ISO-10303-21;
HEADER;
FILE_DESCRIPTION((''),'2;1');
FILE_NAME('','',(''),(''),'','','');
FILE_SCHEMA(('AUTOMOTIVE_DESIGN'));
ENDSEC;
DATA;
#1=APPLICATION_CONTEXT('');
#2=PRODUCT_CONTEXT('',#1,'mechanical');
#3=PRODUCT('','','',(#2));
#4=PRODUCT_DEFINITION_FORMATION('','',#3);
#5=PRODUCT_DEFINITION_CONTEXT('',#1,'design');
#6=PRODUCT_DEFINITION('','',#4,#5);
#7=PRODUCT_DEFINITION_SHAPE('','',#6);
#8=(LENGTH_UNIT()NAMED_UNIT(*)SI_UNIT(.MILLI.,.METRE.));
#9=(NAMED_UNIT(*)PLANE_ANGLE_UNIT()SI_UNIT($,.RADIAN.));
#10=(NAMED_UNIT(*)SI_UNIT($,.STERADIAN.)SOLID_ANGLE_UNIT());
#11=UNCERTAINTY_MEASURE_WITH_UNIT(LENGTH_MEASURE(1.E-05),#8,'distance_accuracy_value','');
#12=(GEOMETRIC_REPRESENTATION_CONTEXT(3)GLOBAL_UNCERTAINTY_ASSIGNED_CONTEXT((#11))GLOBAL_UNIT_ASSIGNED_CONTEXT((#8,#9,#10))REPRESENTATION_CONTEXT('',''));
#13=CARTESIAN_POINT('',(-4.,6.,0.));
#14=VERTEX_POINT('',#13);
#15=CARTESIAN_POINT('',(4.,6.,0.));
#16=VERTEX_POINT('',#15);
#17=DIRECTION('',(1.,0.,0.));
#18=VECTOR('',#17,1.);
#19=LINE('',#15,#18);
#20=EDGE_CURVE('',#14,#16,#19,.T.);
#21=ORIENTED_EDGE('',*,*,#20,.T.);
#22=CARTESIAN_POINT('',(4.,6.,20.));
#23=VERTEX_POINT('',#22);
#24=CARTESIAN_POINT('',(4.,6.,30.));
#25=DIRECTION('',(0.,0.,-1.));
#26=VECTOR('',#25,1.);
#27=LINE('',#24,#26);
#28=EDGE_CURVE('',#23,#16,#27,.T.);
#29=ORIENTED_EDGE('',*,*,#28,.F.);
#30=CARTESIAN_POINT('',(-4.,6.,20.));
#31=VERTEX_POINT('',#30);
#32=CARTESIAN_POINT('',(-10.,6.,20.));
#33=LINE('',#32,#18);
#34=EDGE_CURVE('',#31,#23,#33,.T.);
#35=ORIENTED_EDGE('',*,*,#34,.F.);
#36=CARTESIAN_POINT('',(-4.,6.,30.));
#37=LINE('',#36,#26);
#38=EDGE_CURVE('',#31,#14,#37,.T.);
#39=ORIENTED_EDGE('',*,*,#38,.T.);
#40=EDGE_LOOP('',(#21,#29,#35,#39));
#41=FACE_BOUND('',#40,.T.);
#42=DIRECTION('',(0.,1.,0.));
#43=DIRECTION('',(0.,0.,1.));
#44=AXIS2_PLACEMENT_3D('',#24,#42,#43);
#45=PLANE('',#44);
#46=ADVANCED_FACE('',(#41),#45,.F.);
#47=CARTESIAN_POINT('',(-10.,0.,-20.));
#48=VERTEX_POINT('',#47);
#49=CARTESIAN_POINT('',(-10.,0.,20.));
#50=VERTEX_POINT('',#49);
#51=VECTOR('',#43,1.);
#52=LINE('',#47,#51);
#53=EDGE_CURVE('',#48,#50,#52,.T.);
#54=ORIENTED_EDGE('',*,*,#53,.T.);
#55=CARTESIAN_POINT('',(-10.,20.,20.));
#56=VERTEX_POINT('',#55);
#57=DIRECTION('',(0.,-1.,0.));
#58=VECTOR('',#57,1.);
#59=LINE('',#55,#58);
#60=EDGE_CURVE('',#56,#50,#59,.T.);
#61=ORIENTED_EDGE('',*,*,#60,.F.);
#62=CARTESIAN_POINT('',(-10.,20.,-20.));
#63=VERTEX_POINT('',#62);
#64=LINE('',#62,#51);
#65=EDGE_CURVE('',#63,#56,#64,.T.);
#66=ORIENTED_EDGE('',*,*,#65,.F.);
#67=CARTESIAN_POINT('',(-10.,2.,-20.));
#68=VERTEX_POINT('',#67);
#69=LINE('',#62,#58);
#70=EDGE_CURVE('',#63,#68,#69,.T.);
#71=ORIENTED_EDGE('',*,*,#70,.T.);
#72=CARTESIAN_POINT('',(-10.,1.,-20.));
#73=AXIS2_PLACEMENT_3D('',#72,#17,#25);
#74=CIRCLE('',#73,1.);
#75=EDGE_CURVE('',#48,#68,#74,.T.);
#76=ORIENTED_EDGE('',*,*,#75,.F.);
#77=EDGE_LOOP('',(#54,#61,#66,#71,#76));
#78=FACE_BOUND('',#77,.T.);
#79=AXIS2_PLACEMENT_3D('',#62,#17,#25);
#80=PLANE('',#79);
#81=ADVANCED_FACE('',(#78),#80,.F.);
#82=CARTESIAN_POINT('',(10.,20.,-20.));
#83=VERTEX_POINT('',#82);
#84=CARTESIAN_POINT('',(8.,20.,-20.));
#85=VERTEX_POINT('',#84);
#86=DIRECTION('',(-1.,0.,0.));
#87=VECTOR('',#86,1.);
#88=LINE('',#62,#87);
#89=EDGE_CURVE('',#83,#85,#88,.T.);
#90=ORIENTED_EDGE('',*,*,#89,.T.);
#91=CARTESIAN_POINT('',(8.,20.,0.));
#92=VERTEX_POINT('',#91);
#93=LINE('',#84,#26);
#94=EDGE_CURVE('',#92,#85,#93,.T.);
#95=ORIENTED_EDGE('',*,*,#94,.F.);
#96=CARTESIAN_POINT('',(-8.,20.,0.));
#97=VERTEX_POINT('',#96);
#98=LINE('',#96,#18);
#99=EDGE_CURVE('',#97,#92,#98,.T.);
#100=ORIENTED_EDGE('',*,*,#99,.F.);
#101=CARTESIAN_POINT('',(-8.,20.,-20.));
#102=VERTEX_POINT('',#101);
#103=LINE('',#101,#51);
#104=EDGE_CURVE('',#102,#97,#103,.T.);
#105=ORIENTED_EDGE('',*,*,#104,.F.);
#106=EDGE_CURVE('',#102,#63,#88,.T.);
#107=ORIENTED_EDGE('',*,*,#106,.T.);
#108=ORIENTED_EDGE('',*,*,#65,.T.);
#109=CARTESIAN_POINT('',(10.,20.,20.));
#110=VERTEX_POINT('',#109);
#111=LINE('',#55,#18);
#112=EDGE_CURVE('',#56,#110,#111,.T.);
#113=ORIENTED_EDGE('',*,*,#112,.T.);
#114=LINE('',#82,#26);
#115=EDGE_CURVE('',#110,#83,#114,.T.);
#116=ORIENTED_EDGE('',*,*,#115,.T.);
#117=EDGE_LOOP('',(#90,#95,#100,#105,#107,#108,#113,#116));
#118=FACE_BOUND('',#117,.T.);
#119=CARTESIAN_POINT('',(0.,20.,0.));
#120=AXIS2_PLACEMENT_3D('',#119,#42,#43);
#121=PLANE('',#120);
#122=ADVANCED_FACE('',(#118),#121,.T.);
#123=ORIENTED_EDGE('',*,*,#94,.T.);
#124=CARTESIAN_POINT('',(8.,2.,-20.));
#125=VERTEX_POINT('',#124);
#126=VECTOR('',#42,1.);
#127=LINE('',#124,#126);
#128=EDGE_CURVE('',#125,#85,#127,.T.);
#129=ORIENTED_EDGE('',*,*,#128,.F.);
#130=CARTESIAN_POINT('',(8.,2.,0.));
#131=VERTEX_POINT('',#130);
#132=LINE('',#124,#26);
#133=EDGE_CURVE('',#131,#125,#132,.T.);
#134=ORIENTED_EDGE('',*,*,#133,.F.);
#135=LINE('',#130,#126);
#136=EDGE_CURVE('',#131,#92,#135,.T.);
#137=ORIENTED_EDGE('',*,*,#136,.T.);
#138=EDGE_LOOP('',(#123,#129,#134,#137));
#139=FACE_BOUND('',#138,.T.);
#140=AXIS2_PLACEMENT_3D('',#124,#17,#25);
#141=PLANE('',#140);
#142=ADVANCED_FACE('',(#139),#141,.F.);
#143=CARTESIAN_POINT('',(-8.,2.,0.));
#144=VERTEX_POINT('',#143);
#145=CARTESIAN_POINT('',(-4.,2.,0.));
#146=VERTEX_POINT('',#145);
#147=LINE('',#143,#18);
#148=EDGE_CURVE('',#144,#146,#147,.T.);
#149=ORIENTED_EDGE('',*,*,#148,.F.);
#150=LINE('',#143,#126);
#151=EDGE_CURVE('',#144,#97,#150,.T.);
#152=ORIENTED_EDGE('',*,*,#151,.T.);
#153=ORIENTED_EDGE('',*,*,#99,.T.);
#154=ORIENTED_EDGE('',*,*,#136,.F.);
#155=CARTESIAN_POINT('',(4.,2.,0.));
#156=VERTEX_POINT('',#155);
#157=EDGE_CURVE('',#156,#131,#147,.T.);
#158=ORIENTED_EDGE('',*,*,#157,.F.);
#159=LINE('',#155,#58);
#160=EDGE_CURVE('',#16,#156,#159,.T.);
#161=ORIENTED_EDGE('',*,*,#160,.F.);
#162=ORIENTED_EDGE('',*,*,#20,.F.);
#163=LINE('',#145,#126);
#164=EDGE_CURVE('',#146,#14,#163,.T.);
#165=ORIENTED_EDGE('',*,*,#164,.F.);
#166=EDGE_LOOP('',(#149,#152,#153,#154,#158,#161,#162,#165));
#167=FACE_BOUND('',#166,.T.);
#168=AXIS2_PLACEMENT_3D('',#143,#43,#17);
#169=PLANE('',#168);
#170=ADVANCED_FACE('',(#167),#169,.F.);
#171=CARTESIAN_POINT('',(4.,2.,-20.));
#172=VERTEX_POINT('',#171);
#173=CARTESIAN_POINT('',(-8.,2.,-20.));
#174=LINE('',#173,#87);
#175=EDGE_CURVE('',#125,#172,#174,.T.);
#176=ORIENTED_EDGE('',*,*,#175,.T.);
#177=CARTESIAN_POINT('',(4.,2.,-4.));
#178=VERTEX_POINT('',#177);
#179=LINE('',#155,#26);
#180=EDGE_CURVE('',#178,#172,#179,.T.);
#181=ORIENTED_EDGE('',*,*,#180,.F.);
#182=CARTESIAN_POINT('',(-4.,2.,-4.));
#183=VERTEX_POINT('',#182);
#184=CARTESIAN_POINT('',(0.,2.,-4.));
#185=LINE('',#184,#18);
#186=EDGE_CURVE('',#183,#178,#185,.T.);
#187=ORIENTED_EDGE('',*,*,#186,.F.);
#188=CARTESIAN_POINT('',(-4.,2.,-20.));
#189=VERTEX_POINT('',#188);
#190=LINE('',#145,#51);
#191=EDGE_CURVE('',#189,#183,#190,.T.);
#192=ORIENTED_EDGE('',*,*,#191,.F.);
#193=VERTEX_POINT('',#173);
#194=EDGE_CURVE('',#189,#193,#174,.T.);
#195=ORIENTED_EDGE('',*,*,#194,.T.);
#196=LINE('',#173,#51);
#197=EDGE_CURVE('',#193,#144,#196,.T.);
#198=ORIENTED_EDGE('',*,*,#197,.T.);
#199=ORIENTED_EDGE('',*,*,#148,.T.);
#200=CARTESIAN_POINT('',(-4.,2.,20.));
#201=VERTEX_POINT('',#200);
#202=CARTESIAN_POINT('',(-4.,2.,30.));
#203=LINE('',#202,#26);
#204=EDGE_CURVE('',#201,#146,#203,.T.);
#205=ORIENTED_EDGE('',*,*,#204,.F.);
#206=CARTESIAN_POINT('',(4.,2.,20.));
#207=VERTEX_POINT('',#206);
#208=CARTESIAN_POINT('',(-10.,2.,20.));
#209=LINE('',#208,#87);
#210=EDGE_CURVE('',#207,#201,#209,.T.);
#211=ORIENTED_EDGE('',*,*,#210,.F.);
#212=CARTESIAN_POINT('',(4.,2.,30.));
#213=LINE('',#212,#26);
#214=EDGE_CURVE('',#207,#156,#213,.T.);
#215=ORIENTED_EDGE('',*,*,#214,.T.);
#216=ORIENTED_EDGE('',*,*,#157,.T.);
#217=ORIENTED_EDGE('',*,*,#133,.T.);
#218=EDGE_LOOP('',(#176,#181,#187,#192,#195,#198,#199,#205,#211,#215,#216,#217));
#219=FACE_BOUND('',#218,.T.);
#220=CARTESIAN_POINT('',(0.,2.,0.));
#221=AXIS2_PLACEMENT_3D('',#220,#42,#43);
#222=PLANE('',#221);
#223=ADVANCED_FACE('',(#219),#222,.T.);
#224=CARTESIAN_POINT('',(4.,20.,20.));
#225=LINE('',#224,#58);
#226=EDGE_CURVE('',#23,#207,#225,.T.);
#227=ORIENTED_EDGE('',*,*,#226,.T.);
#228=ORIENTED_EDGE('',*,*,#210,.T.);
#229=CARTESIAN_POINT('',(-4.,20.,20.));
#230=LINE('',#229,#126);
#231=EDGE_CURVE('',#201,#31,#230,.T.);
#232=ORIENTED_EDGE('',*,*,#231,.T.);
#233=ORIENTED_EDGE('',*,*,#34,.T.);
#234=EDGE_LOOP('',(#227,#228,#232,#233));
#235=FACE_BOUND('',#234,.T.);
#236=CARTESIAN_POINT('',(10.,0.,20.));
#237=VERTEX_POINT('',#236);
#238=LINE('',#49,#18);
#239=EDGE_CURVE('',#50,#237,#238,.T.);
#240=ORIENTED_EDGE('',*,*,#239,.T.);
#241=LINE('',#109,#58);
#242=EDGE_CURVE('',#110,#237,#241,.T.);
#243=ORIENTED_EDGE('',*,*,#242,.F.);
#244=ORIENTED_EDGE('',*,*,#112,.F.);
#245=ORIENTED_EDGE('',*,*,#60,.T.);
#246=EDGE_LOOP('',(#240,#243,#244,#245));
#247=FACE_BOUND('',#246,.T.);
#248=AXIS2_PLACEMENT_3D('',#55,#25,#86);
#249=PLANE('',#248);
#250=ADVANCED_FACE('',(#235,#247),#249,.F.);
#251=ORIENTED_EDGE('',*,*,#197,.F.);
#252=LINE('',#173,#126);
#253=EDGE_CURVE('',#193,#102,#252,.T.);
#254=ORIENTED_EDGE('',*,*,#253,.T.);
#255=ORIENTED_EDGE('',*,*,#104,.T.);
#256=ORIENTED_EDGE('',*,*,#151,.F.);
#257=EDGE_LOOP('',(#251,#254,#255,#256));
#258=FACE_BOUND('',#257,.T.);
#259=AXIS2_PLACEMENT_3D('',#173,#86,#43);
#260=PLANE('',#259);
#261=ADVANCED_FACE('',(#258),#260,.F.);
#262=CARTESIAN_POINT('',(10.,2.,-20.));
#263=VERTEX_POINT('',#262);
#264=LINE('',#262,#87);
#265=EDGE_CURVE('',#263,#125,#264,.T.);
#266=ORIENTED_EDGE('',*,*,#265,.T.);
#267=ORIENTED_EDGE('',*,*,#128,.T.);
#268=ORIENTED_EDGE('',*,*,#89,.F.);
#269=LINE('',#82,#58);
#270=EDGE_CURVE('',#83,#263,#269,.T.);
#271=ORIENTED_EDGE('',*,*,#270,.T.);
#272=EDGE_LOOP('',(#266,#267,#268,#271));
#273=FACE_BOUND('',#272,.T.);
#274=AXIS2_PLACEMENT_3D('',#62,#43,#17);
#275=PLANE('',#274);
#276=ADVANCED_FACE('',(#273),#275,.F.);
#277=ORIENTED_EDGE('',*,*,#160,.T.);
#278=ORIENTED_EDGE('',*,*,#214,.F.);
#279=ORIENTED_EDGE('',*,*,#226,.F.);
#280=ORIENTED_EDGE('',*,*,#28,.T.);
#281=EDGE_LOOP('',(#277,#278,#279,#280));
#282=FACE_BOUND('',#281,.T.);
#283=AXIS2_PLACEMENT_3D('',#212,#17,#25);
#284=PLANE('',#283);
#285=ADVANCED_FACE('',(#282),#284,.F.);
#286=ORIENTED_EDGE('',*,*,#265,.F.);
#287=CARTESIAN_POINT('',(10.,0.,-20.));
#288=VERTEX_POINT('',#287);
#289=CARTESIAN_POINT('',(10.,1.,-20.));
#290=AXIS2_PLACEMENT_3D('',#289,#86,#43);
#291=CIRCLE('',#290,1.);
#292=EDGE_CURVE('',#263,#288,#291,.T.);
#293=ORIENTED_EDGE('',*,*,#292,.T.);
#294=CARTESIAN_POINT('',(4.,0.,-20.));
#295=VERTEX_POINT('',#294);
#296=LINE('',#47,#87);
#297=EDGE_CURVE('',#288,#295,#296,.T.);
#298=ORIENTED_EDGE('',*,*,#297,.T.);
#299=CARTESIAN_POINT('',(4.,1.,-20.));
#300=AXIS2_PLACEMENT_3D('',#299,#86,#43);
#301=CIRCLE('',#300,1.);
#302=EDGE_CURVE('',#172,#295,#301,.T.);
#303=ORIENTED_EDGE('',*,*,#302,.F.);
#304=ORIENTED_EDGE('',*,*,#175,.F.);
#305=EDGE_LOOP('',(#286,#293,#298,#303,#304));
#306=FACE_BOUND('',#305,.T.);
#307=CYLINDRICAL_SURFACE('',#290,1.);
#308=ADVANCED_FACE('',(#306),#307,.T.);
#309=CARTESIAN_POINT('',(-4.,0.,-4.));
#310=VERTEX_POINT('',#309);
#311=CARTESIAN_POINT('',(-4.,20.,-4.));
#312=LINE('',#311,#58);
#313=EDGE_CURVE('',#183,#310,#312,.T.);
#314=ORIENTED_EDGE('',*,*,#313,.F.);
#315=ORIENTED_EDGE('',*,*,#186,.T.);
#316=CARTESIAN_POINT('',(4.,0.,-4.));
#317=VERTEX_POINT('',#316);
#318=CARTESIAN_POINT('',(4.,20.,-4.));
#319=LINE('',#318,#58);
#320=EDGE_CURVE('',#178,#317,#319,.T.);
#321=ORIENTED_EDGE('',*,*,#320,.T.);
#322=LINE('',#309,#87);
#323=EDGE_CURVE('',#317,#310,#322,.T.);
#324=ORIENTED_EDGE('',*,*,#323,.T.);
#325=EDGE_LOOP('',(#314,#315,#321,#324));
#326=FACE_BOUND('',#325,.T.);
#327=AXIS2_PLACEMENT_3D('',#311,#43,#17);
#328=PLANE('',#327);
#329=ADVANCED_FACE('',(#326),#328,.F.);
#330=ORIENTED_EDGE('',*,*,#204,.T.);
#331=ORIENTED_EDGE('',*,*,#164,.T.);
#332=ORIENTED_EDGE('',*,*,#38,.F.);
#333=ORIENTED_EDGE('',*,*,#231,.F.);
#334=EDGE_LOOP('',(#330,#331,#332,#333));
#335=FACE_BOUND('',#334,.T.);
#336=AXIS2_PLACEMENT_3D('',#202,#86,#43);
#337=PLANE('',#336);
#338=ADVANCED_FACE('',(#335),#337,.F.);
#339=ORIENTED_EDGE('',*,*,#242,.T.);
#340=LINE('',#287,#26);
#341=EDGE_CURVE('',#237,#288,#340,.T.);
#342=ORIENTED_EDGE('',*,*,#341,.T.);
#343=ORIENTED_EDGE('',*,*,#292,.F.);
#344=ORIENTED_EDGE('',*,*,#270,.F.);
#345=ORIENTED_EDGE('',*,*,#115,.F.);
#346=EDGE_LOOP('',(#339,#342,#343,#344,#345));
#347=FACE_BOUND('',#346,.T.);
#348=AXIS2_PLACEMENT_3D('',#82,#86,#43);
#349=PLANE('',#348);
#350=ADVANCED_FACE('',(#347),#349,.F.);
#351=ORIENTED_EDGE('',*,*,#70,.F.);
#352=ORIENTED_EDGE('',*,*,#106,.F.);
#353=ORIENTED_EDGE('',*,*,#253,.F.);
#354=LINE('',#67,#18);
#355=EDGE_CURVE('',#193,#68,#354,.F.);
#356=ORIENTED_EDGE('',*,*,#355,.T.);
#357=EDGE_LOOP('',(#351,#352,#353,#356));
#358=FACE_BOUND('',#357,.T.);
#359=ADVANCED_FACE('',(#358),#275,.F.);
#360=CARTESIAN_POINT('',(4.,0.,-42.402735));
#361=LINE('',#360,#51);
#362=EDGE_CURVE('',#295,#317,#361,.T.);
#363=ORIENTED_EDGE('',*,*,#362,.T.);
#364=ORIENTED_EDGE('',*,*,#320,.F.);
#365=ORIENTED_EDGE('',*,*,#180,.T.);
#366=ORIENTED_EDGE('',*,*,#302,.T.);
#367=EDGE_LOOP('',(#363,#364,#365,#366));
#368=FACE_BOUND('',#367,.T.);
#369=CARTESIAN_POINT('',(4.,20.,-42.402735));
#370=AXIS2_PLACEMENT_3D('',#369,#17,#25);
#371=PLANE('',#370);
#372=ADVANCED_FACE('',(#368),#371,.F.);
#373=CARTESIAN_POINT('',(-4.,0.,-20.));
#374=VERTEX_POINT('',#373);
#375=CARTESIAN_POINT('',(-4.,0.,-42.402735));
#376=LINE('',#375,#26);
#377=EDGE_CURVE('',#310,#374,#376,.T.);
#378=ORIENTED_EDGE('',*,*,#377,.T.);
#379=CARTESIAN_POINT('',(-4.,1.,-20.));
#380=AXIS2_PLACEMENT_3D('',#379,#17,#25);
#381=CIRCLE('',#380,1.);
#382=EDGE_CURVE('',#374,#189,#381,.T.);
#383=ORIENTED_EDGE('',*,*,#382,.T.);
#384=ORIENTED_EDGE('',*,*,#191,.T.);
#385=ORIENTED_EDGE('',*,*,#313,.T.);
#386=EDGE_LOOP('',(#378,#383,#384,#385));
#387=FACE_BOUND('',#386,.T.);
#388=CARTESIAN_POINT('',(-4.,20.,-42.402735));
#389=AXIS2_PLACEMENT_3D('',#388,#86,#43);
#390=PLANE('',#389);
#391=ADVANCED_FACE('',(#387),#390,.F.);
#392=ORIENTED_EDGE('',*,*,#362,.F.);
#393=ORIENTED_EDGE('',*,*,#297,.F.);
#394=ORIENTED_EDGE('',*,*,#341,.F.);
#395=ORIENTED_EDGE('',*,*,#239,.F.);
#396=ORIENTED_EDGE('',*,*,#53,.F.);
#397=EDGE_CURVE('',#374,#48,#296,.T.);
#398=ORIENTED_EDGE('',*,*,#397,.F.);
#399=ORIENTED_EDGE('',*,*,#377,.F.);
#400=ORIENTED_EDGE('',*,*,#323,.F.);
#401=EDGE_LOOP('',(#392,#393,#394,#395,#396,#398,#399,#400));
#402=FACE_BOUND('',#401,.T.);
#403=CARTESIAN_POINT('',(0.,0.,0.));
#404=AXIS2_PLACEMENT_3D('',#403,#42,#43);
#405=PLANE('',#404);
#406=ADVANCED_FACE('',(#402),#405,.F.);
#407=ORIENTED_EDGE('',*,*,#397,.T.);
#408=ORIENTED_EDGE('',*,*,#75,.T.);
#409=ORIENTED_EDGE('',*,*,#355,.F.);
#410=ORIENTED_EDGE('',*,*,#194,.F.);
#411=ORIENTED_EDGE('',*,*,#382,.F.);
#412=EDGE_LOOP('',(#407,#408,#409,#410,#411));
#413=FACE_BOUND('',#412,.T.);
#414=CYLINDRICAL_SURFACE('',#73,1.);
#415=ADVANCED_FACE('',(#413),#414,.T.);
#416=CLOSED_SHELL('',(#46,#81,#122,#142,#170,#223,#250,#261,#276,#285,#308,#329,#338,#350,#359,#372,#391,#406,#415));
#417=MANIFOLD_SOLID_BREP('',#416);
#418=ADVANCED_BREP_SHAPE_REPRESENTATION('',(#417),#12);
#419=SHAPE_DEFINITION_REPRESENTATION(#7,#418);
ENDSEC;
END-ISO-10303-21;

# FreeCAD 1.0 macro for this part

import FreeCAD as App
import Part
import Sketcher


def add_polygon(sketch, points):
    """Adds a closed chain of lines whose ends are joined by coincident constraints."""
    first, n = sketch.GeometryCount, len(points)
    for a, b in zip(points, points[1:] + points[:1]):
        sketch.addGeometry(Part.LineSegment(App.Vector(*a, 0), App.Vector(*b, 0)), False)
    for i in range(n):
        sketch.addConstraint(Sketcher.Constraint("Coincident", first + i, 2, first + (i + 1) % n, 1))

doc = App.newDocument("Part")
params = doc.addObject("Spreadsheet::Sheet", "Params")
for row, (alias, value) in enumerate([
    ("sketch1_width", "20 mm"),
    ("sketch1_height", "40 mm"),
    ("pad1_length", "20 mm"),
    ("sketch2_width", "16 mm"),
    ("sketch2_height", "20 mm"),
    ("pocket1_length", "18 mm"),
    ("sketch3_width", "8 mm"),
    ("pocket2_length", "20 mm"),
    ("sketch4_diameter", "2 mm"),
    ("pad2_length", "6 mm"),
    ("sketch5_diameter", "2 mm"),
    ("pad3_length", "6 mm"),
    ("sketch6_width", "8 mm"),
    ("sketch6_height", "4 mm"),
    ("pocket3_length", "30 mm"),
], start=1):
    params.set(f"A{row}", alias)
    params.set(f"B{row}", "=" + value)
    params.setAlias(f"B{row}", alias)

body = doc.addObject("PartDesign::Body", "Body")

# Sketch on XZ plane
sketch1 = body.newObject("Sketcher::SketchObject", "Sketch")
sketch1.AttachmentSupport = (doc.getObject("XZ_Plane"), [""])
sketch1.MapMode = "FlatFace"
add_polygon(sketch1, [(-10, -20), (-10, 20), (10, 20), (10, -20)])  # lines 0-3
sketch1.addConstraint([
    Sketcher.Constraint("Vertical", 0),
    Sketcher.Constraint("Horizontal", 1),
    Sketcher.Constraint("Vertical", 2),
    Sketcher.Constraint("Horizontal", 3),
    Sketcher.Constraint("Symmetric", 0, 2, 2, 2, -1, 1),
    Sketcher.Constraint("DistanceX", 1, 1, 1, 2, 20.0),
    Sketcher.Constraint("DistanceY", 0, 1, 0, 2, 40.0),
])
sketch1.setExpression("Constraints[9]", "Params.sketch1_width")
sketch1.setExpression("Constraints[10]", "Params.sketch1_height")
pad1 = body.newObject("PartDesign::Pad", "Pad")
pad1.Profile = sketch1
pad1.setExpression("Length", "Params.pad1_length")
pad1.Reversed = True

# Sketch on XZ plane
sketch2 = body.newObject("Sketcher::SketchObject", "Sketch001")
sketch2.AttachmentSupport = (doc.getObject("XZ_Plane"), [""])
sketch2.MapMode = "FlatFace"
sketch2.AttachmentOffset = App.Placement(App.Vector(0, 0, -20), App.Rotation())
add_polygon(sketch2, [(-8, -20), (-8, 0), (8, 0), (8, -20)])  # lines 0-3
sketch2.addConstraint([
    Sketcher.Constraint("Vertical", 0),
    Sketcher.Constraint("Horizontal", 1),
    Sketcher.Constraint("Vertical", 2),
    Sketcher.Constraint("Horizontal", 3),
    Sketcher.Constraint("Symmetric", 0, 2, 1, 2, -1, 1),
    Sketcher.Constraint("DistanceX", 1, 1, 1, 2, 16.0),
    Sketcher.Constraint("DistanceY", 0, 1, 0, 2, 20.0),
])
sketch2.setExpression("Constraints[9]", "Params.sketch2_width")
sketch2.setExpression("Constraints[10]", "Params.sketch2_height")
pocket1 = body.newObject("PartDesign::Pocket", "Pocket")
pocket1.Profile = sketch2
pocket1.setExpression("Length", "Params.pocket1_length")
pocket1.Reversed = True

# Sketch on XZ plane
sketch3 = body.newObject("Sketcher::SketchObject", "Sketch002")
sketch3.AttachmentSupport = (doc.getObject("XZ_Plane"), [""])
sketch3.MapMode = "FlatFace"
add_polygon(sketch3, [(-4, -4), (-4, -42), (4, -42), (4, -4)])  # lines 0-3
sketch3.addConstraint([
    Sketcher.Constraint("Vertical", 0),
    Sketcher.Constraint("Horizontal", 1),
    Sketcher.Constraint("Vertical", 2),
    Sketcher.Constraint("Horizontal", 3),
    Sketcher.Constraint("DistanceX", 1, 1, 1, 2, 8.0),
    Sketcher.Constraint("DistanceX", 0, 2, -1, 1, 4.0),
    Sketcher.Constraint("DistanceY", 2, 2, -1, 1, 4.0),
    Sketcher.Constraint("DistanceY", 0, 2, 0, 1, 38.402735),
])
sketch3.setExpression("Constraints[8]", "Params.sketch3_width")
pocket2 = body.newObject("PartDesign::Pocket", "Pocket001")
pocket2.Profile = sketch3
pocket2.setExpression("Length", "Params.pocket2_length")

# Sketch on YZ plane
sketch4 = body.newObject("Sketcher::SketchObject", "Sketch003")
sketch4.AttachmentSupport = (doc.getObject("YZ_Plane"), [""])
sketch4.MapMode = "FlatFace"
sketch4.AttachmentOffset = App.Placement(App.Vector(0, 0, -4), App.Rotation())
sketch4.addGeometry(Part.Circle(App.Vector(1, -20, 0), App.Vector(0, 0, 1), 1), False)
sketch4.addConstraint([
    Sketcher.Constraint("Diameter", 0, 2.0),
    Sketcher.Constraint("DistanceX", -1, 1, 0, 3, 1.0),
    Sketcher.Constraint("DistanceY", 0, 3, -1, 1, 20.0),
])
sketch4.setExpression("Constraints[0]", "Params.sketch4_diameter")
pad2 = body.newObject("PartDesign::Pad", "Pad001")
pad2.Profile = sketch4
pad2.setExpression("Length", "Params.pad2_length")
pad2.Reversed = True

# Sketch on YZ plane
sketch5 = body.newObject("Sketcher::SketchObject", "Sketch004")
sketch5.AttachmentSupport = (doc.getObject("YZ_Plane"), [""])
sketch5.MapMode = "FlatFace"
sketch5.AttachmentOffset = App.Placement(App.Vector(0, 0, 4), App.Rotation())
sketch5.addGeometry(Part.Circle(App.Vector(1, -20, 0), App.Vector(0, 0, 1), 1), False)
sketch5.addConstraint([
    Sketcher.Constraint("Diameter", 0, 2.0),
    Sketcher.Constraint("DistanceX", -1, 1, 0, 3, 1.0),
    Sketcher.Constraint("DistanceY", 0, 3, -1, 1, 20.0),
])
sketch5.setExpression("Constraints[0]", "Params.sketch5_diameter")
pad3 = body.newObject("PartDesign::Pad", "Pad002")
pad3.Profile = sketch5
pad3.setExpression("Length", "Params.pad3_length")

# Sketch on XY plane
sketch6 = body.newObject("Sketcher::SketchObject", "Sketch005")
sketch6.AttachmentSupport = (doc.getObject("XY_Plane"), [""])
sketch6.MapMode = "FlatFace"
add_polygon(sketch6, [(4, 6), (4, 2), (-4, 2), (-4, 6)])  # lines 0-3
sketch6.addConstraint([
    Sketcher.Constraint("Vertical", 0),
    Sketcher.Constraint("Horizontal", 1),
    Sketcher.Constraint("Vertical", 2),
    Sketcher.Constraint("Horizontal", 3),
    Sketcher.Constraint("DistanceX", 1, 2, 1, 1, 8.0),
    Sketcher.Constraint("DistanceY", 0, 2, 0, 1, 4.0),
    Sketcher.Constraint("DistanceX", -1, 1, 0, 2, 4.0),
    Sketcher.Constraint("DistanceY", -1, 1, 0, 2, 2.0),
])
sketch6.setExpression("Constraints[8]", "Params.sketch6_width")
sketch6.setExpression("Constraints[9]", "Params.sketch6_height")
pocket3 = body.newObject("PartDesign::Pocket", "Pocket002")
pocket3.Profile = sketch6
pocket3.setExpression("Length", "Params.pocket3_length")
pocket3.Reversed = True

doc.recompute()
